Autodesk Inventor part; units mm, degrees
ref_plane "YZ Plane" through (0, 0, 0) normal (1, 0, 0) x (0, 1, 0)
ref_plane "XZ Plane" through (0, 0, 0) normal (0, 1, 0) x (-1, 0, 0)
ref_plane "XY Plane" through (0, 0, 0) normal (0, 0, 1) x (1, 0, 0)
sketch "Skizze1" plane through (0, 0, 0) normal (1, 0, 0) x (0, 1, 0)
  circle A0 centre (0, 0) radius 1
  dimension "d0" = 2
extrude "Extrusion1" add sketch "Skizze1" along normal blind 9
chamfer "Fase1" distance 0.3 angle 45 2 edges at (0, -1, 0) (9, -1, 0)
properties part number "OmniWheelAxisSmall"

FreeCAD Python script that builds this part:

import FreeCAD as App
import Part
import Sketcher
Q = App.Units.Quantity


def edges_at(feature, points):
    """Names of the edges that pass closest to the given points."""
    edges = feature.Shape.Edges
    near = lambda p: min(range(len(edges)), key=lambda i: edges[i].distToShape(Part.Vertex(*p))[0])
    return sorted({f"Edge{near(p) + 1}" for p in points})

doc = App.newDocument("Part")
body = doc.addObject("PartDesign::Body", "Body")

# Sketch on YZ plane
sketch1 = body.newObject("Sketcher::SketchObject", "Sketch")
sketch1.AttachmentSupport = (doc.getObject("YZ_Plane"), [""])
sketch1.MapMode = "FlatFace"
sketch1.addGeometry(Part.Circle(App.Vector(0, 0, 0), App.Vector(0, 0, 1), 1), False)
sketch1.addConstraint(Sketcher.Constraint("Coincident", 0, 3, -1, 1))
sketch1.addConstraint(Sketcher.Constraint("Diameter", 0, Q("2 mm")))
pad1 = body.newObject("PartDesign::Pad", "Pad")
pad1.Profile = sketch1
pad1.Length = 9
doc.recompute()

chamfer = body.newObject("PartDesign::Chamfer", "Chamfer")
chamfer.Base = (pad1, edges_at(pad1, [(0, -1, 0), (9, -1, 0)]))
chamfer.Size = 0.3

doc.recompute()
